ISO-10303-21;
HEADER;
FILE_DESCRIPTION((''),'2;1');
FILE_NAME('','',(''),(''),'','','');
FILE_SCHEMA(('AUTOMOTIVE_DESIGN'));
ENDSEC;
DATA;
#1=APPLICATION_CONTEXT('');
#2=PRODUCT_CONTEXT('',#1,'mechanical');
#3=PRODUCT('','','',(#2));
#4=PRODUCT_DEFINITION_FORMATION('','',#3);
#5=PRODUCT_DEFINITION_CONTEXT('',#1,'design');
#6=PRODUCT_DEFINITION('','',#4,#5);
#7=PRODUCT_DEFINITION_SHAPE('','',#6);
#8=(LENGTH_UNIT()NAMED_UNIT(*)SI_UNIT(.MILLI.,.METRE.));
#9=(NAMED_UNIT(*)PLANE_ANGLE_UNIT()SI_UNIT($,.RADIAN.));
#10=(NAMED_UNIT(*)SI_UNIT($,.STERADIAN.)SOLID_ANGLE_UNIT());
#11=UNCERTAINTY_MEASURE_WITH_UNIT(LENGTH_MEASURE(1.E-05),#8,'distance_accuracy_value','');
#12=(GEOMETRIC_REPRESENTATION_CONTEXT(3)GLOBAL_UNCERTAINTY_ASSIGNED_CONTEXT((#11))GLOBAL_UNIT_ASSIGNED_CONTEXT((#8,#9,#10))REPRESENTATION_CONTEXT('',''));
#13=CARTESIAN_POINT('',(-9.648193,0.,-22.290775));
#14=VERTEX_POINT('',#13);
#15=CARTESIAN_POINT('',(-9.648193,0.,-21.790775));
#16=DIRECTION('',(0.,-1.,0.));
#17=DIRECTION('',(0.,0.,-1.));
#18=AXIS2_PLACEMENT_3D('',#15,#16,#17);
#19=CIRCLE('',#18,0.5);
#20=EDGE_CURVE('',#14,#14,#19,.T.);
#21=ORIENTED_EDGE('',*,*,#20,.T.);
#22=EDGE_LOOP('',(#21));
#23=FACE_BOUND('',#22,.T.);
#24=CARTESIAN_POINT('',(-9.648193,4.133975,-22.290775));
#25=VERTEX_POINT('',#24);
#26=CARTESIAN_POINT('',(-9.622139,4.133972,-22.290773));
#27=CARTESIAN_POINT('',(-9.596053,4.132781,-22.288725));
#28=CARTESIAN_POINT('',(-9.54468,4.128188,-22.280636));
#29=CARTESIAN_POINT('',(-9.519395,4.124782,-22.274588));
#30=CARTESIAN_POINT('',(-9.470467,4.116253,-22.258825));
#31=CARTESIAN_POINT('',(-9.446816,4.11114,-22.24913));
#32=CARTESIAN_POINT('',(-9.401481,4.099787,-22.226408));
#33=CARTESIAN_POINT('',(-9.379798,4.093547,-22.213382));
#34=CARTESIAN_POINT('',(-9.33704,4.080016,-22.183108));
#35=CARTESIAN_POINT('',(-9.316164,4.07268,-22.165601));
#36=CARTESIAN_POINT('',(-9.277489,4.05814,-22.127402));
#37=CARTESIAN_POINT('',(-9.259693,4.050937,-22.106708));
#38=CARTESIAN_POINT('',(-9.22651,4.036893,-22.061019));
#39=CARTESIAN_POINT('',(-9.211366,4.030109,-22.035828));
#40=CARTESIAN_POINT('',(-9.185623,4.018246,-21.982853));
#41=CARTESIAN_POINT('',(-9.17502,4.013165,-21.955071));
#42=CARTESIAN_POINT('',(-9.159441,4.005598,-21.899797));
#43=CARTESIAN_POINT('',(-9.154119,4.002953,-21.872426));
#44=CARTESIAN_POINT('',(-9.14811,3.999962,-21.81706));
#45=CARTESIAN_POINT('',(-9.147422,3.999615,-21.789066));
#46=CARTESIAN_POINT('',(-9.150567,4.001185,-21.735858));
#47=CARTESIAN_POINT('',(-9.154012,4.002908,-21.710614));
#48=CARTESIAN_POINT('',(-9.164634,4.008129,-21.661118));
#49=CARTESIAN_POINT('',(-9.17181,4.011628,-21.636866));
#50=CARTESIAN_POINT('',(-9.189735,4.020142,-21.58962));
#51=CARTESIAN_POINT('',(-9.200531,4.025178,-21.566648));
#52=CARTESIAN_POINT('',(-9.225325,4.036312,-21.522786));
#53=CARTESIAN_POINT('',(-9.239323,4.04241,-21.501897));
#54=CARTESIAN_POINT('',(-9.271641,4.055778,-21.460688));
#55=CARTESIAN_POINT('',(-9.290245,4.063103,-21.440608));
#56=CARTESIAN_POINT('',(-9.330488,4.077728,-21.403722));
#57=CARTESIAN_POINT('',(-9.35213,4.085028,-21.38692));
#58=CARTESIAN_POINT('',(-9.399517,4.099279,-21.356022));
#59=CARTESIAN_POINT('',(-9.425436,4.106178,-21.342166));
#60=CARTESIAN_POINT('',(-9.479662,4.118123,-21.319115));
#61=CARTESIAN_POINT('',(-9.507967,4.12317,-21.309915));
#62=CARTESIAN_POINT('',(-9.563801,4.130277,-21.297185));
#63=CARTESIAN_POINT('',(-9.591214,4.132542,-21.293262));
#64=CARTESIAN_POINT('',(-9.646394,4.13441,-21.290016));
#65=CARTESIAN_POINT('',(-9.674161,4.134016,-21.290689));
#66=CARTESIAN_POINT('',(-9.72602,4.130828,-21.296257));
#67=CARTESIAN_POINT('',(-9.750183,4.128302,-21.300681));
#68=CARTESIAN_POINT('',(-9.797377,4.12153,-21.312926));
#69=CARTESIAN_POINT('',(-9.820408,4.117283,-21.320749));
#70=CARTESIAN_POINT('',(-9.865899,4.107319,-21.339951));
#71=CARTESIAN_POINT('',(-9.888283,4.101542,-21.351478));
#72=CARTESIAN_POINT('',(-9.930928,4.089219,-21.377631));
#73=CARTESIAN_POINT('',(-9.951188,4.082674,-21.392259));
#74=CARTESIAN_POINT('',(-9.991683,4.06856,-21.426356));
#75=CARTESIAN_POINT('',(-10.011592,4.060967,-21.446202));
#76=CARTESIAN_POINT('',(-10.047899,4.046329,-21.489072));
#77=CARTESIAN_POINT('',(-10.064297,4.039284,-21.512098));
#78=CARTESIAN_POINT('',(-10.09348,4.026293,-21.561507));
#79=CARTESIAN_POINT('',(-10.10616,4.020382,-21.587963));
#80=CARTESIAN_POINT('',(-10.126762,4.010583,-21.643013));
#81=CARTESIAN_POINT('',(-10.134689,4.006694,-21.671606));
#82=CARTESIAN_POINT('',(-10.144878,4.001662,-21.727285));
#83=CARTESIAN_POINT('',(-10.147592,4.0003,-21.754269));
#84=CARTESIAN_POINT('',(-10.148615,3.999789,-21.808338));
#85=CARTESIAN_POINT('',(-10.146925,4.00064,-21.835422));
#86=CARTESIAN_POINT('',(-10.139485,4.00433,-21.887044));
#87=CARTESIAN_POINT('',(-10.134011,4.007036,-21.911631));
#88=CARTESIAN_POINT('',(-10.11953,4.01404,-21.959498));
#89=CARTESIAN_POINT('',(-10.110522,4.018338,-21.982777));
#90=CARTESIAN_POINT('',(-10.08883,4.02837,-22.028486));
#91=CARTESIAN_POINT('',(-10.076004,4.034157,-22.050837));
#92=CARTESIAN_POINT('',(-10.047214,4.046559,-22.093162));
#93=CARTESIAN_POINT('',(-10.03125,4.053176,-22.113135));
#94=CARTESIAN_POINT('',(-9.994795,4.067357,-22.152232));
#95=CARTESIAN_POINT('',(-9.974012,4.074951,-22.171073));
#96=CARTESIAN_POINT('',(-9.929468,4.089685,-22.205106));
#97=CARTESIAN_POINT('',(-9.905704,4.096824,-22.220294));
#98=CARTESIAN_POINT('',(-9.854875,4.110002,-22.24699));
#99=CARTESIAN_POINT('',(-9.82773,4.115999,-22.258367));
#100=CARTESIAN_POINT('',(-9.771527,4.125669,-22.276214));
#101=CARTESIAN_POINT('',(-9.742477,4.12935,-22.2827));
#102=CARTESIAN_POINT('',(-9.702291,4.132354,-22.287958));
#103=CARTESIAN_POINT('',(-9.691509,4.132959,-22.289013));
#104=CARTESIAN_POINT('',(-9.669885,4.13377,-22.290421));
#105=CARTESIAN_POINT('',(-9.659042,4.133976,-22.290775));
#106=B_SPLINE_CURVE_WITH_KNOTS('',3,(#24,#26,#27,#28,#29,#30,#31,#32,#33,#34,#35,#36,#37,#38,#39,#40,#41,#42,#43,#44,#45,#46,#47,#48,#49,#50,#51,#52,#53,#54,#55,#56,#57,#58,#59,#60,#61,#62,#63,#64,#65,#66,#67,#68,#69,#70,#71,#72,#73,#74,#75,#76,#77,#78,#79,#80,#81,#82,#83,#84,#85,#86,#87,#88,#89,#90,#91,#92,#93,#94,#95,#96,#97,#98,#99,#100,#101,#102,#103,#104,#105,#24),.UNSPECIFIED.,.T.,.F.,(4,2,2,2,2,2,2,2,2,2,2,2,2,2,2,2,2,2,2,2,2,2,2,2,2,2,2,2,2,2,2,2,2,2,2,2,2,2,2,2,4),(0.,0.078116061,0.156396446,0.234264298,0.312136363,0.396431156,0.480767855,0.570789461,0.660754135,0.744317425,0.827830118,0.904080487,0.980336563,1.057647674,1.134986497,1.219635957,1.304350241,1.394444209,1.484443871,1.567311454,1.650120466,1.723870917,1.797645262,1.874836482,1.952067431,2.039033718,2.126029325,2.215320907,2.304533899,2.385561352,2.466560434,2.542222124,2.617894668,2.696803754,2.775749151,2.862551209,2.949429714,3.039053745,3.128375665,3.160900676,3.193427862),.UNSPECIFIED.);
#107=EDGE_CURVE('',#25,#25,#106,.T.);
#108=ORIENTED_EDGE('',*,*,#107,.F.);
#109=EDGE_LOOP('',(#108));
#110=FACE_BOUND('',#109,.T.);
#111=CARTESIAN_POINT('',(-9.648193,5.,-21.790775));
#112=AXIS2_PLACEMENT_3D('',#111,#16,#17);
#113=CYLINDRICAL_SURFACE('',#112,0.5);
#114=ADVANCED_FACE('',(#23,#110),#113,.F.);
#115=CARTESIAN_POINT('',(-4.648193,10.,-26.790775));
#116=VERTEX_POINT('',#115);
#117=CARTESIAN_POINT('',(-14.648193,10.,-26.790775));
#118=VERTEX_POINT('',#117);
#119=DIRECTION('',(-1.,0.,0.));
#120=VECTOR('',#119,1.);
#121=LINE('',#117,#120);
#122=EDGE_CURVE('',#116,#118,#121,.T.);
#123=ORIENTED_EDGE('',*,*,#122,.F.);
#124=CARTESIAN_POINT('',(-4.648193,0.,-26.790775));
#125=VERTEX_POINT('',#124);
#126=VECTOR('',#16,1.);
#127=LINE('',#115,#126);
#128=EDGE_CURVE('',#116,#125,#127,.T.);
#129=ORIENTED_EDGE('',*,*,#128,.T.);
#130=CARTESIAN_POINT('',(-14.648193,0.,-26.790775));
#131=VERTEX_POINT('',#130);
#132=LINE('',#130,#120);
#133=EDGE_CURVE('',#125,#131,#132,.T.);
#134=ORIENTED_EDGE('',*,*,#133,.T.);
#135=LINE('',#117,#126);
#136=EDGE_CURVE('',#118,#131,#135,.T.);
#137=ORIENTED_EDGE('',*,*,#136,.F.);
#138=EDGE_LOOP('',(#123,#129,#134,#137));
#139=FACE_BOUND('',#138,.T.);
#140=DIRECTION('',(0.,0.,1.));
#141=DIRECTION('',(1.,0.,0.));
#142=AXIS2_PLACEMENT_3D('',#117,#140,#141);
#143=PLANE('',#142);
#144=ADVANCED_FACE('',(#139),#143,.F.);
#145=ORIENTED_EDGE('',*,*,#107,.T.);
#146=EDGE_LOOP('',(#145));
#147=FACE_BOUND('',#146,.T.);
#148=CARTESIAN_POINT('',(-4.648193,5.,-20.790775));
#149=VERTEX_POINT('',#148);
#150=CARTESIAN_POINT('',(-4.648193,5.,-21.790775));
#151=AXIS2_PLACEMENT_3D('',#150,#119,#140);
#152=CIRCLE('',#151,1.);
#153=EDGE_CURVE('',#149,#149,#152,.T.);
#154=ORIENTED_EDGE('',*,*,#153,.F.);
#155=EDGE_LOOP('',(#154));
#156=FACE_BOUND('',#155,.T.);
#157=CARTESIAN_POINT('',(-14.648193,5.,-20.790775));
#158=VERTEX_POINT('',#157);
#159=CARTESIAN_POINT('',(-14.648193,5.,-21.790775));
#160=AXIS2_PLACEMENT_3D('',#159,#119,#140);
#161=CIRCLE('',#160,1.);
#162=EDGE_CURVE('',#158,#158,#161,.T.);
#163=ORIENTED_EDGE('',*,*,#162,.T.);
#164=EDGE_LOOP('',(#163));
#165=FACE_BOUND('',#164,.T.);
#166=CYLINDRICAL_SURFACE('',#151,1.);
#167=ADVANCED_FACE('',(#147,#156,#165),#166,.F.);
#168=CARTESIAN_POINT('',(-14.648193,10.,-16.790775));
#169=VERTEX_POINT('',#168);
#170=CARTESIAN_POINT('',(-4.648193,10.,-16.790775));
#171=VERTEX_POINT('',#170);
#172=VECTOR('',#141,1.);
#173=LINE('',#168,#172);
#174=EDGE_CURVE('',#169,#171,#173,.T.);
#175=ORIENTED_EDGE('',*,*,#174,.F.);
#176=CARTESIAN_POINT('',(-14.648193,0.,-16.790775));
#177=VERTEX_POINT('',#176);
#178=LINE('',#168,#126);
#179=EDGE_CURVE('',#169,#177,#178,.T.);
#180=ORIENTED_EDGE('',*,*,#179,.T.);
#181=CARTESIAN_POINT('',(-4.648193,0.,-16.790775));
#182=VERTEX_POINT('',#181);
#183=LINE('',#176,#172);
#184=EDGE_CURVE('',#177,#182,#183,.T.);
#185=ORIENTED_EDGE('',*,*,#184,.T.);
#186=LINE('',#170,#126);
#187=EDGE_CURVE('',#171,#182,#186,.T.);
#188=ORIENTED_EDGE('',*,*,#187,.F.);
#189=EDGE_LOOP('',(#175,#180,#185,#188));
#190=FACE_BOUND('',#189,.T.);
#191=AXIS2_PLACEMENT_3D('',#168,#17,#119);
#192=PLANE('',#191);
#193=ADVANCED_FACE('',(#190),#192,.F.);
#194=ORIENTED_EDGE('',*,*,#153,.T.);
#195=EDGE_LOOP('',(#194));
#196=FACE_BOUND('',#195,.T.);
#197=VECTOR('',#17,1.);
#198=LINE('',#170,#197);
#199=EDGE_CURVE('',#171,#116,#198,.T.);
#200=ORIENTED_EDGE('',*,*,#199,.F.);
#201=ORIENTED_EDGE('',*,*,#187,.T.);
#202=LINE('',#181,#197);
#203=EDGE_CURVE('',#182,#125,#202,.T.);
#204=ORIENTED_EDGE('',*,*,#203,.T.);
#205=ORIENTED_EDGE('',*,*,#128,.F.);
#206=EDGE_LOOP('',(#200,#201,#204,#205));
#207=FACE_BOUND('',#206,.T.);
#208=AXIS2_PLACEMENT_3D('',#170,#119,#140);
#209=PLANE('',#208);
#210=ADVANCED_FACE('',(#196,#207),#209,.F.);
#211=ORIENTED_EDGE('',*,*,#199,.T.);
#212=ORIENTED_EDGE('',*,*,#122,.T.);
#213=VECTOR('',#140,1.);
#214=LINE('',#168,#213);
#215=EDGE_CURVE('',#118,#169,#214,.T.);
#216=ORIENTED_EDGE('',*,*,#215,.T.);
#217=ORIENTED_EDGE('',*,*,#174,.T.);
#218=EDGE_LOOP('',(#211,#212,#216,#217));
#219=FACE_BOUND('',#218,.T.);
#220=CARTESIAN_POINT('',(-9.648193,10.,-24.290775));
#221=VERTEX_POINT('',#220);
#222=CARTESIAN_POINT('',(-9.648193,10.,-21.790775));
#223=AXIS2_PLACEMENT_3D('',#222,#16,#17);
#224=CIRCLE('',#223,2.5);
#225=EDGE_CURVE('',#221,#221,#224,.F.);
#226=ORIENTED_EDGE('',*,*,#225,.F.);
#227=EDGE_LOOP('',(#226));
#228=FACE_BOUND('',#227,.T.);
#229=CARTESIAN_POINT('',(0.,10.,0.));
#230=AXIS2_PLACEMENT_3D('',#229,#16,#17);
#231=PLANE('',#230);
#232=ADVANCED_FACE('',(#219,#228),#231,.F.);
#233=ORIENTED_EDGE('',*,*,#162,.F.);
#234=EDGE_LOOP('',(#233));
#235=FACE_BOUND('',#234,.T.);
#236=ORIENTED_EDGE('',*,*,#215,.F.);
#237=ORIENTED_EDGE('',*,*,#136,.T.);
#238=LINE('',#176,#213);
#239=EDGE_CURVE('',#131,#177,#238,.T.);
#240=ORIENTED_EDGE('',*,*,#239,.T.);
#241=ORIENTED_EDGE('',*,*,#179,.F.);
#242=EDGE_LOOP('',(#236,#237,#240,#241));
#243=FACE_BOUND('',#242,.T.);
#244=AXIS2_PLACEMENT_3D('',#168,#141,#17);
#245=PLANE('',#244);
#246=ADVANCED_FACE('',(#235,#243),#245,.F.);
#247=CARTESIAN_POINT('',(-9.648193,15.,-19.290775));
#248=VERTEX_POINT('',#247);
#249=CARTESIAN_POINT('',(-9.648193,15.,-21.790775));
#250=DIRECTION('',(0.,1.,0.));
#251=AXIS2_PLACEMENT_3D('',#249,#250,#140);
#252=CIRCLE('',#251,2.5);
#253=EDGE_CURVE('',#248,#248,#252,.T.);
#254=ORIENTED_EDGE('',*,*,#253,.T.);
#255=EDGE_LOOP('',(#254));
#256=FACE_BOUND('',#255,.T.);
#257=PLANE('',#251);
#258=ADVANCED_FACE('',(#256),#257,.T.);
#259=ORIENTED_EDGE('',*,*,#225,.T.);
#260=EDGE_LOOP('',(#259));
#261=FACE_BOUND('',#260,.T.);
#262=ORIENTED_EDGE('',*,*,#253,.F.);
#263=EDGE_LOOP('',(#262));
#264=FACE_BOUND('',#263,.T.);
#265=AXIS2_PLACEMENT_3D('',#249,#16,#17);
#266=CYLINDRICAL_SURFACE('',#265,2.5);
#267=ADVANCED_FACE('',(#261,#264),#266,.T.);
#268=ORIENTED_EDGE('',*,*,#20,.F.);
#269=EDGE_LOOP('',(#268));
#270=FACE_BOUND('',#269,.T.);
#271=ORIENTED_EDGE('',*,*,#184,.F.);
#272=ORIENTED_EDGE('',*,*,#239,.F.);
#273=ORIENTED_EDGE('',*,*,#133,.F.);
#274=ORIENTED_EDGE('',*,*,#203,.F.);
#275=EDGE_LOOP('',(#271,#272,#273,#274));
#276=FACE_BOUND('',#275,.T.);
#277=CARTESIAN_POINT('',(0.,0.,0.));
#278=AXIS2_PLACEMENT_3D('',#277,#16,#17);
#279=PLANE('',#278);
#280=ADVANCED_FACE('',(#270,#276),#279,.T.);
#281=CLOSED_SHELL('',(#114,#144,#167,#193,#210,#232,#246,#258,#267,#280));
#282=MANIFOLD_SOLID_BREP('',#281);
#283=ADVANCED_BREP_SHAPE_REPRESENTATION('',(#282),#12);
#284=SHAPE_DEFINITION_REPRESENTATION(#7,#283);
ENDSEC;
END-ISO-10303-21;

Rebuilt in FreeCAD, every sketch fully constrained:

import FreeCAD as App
import Part
import Sketcher
Q = App.Units.Quantity


def add_polygon(sketch, points):
    """Adds a closed chain of lines whose ends are joined by coincident constraints."""
    first, n = sketch.GeometryCount, len(points)
    for a, b in zip(points, points[1:] + points[:1]):
        sketch.addGeometry(Part.LineSegment(App.Vector(*a, 0), App.Vector(*b, 0)), False)
    for i in range(n):
        sketch.addConstraint(Sketcher.Constraint("Coincident", first + i, 2, first + (i + 1) % n, 1))

doc = App.newDocument("Part")
params = doc.addObject("Spreadsheet::Sheet", "Params")
for row, (alias, value) in enumerate([
    ("sketch1_width", "10 mm"),
    ("pad1_length", "10 mm"),
    ("sketch2_diameter", "5 mm"),
    ("pad2_length", "5 mm"),
    ("sketch3_diameter", "2 mm"),
    ("pocket1_length", "10 mm"),
    ("sketch4_diameter", "1 mm"),
    ("pocket2_length", "5 mm"),
], start=1):
    params.set(f"A{row}", alias)
    params.set(f"B{row}", "=" + value)
    params.setAlias(f"B{row}", alias)

body = doc.addObject("PartDesign::Body", "Body")

sketch1 = body.newObject("Sketcher::SketchObject", "Sketch")
sketch1.AttachmentSupport = (doc.getObject("XZ_Plane"), [""])
sketch1.MapMode = "FlatFace"
add_polygon(sketch1, [(-15, -27), (-15, -17), (-5, -17), (-5, -27)])
sketch1.addConstraint(Sketcher.Constraint("Vertical", 0))
sketch1.addConstraint(Sketcher.Constraint("Horizontal", 1))
sketch1.addConstraint(Sketcher.Constraint("Vertical", 2))
sketch1.addConstraint(Sketcher.Constraint("Horizontal", 3))
sketch1.addConstraint(Sketcher.Constraint("Equal", 3, 0))
sketch1.addConstraint(Sketcher.Constraint("DistanceX", 1, 1, 1, 2, Q("10 mm")))
sketch1.addConstraint(Sketcher.Constraint("DistanceX", 0, 2, -1, 1, Q("14.648193 mm")))
sketch1.addConstraint(Sketcher.Constraint("DistanceY", 0, 2, -1, 1, Q("16.790775 mm")))
sketch1.setExpression("Constraints[9]", "Params.sketch1_width")
pad1 = body.newObject("PartDesign::Pad", "Pad")
pad1.Profile = sketch1
pad1.setExpression("Length", "Params.pad1_length")
pad1.Reversed = True

sketch2 = body.newObject("Sketcher::SketchObject", "Sketch001")
sketch2.AttachmentSupport = (doc.getObject("XZ_Plane"), [""])
sketch2.MapMode = "FlatFace"
sketch2.AttachmentOffset = App.Placement(App.Vector(0, 0, -10), App.Rotation())
sketch2.addGeometry(Part.Circle(App.Vector(-9.6, -21.8, 0), App.Vector(0, 0, 1), 2.5), False)
sketch2.addConstraint(Sketcher.Constraint("Diameter", 0, Q("5 mm")))
sketch2.addConstraint(Sketcher.Constraint("DistanceX", 0, 3, -1, 1, Q("9.648193 mm")))
sketch2.addConstraint(Sketcher.Constraint("DistanceY", 0, 3, -1, 1, Q("21.790775 mm")))
sketch2.setExpression("Constraints[0]", "Params.sketch2_diameter")
pad2 = body.newObject("PartDesign::Pad", "Pad001")
pad2.Profile = sketch2
pad2.setExpression("Length", "Params.pad2_length")
pad2.Reversed = True

sketch3 = body.newObject("Sketcher::SketchObject", "Sketch002")
sketch3.AttachmentSupport = (doc.getObject("YZ_Plane"), [""])
sketch3.MapMode = "FlatFace"
sketch3.AttachmentOffset = App.Placement(App.Vector(0, 0, -14.648193), App.Rotation())
sketch3.addGeometry(Part.Circle(App.Vector(5, -21.8, 0), App.Vector(0, 0, 1), 1), False)
sketch3.addConstraint(Sketcher.Constraint("Diameter", 0, Q("2 mm")))
sketch3.addConstraint(Sketcher.Constraint("DistanceX", -1, 1, 0, 3, Q("5 mm")))
sketch3.addConstraint(Sketcher.Constraint("DistanceY", 0, 3, -1, 1, Q("21.790775 mm")))
sketch3.setExpression("Constraints[0]", "Params.sketch3_diameter")
pocket1 = body.newObject("PartDesign::Pocket", "Pocket")
pocket1.Profile = sketch3
pocket1.setExpression("Length", "Params.pocket1_length")
pocket1.Reversed = True

sketch4 = body.newObject("Sketcher::SketchObject", "Sketch003")
sketch4.AttachmentSupport = (doc.getObject("XZ_Plane"), [""])
sketch4.MapMode = "FlatFace"
sketch4.addGeometry(Part.Circle(App.Vector(-9.6, -21.8, 0), App.Vector(0, 0, 1), 0.5), False)
sketch4.addConstraint(Sketcher.Constraint("Diameter", 0, Q("1 mm")))
sketch4.addConstraint(Sketcher.Constraint("DistanceX", 0, 3, -1, 1, Q("9.648193 mm")))
sketch4.addConstraint(Sketcher.Constraint("DistanceY", 0, 3, -1, 1, Q("21.790775 mm")))
sketch4.setExpression("Constraints[0]", "Params.sketch4_diameter")
pocket2 = body.newObject("PartDesign::Pocket", "Pocket001")
pocket2.Profile = sketch4
pocket2.setExpression("Length", "Params.pocket2_length")

doc.recompute()
